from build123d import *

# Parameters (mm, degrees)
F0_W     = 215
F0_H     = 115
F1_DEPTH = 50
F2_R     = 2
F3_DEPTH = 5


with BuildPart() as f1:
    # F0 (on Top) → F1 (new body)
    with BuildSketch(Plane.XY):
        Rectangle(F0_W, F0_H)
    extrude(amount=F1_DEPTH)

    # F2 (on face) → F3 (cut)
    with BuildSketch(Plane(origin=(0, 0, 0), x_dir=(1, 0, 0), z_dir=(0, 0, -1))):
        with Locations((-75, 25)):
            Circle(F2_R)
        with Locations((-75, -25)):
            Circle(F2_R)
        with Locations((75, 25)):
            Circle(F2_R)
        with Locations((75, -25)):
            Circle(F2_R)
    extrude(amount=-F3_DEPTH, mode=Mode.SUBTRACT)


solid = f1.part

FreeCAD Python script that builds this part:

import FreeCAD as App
import Part
import Sketcher

V = App.Vector


def add_polygon(sketch, points):
    """Adds a closed chain of lines whose ends are joined by coincident constraints."""
    first, n = sketch.GeometryCount, len(points)
    for a, b in zip(points, points[1:] + points[:1]):
        sketch.addGeometry(Part.LineSegment(App.Vector(*a, 0), App.Vector(*b, 0)), False)
    for i in range(n):
        sketch.addConstraint(Sketcher.Constraint("Coincident", first + i, 2, first + (i + 1) % n, 1))

doc = App.newDocument("Part")
body = doc.addObject("PartDesign::Body", "Body")

# Sketch on XY plane
sketch1 = body.newObject("Sketcher::SketchObject", "Sketch")
sketch1.AttachmentSupport = (doc.getObject("XY_Plane"), [""])
sketch1.MapMode = "FlatFace"
add_polygon(sketch1, [(-108, 58), (-108, -58), (108, -58), (108, 58)])  # lines 0-3
sketch1.addConstraint([
    Sketcher.Constraint("Vertical", 0),
    Sketcher.Constraint("Horizontal", 1),
    Sketcher.Constraint("Vertical", 2),
    Sketcher.Constraint("Horizontal", 3),
    Sketcher.Constraint("Symmetric", 0, 2, 2, 2, -1, 1),
    Sketcher.Constraint("DistanceX", 1, 1, 1, 2, 215.0),
    Sketcher.Constraint("DistanceY", 0, 2, 0, 1, 115.0),
])
pad1 = body.newObject("PartDesign::Pad", "Pad")
pad1.Profile = sketch1
pad1.Length = 50

# Sketch on XY plane
sketch2 = body.newObject("Sketcher::SketchObject", "Sketch001")
sketch2.AttachmentSupport = (doc.getObject("XY_Plane"), [""])
sketch2.MapMode = "FlatFace"
sketch2.addGeometry([
    Part.Circle(V(-75, -25, 0), V(0, 0, 1), 2),
    Part.Circle(V(-75, 25, 0), V(0, 0, 1), 2),
    Part.Circle(V(75, -25, 0), V(0, 0, 1), 2),
    Part.Circle(V(75, 25, 0), V(0, 0, 1), 2),
], False)
sketch2.addConstraint([
    Sketcher.Constraint("Equal", 0, 1),
    Sketcher.Constraint("Equal", 1, 2),
    Sketcher.Constraint("Equal", 2, 3),
    Sketcher.Constraint("Symmetric", 1, 3, 2, 3, -1, 1),
    Sketcher.Constraint("Symmetric", 0, 3, 3, 3, -1, 1),
    Sketcher.Constraint("Symmetric", 0, 3, 2, 3, -2),
    Sketcher.Constraint("Diameter", 0, 4.0),
    Sketcher.Constraint("DistanceX", 0, 3, -1, 1, 75.0),
    Sketcher.Constraint("DistanceY", 0, 3, -1, 1, 25.0),
])
pocket1 = body.newObject("PartDesign::Pocket", "Pocket")
pocket1.Profile = sketch2
pocket1.Length = 5
pocket1.Reversed = True

doc.recompute()
